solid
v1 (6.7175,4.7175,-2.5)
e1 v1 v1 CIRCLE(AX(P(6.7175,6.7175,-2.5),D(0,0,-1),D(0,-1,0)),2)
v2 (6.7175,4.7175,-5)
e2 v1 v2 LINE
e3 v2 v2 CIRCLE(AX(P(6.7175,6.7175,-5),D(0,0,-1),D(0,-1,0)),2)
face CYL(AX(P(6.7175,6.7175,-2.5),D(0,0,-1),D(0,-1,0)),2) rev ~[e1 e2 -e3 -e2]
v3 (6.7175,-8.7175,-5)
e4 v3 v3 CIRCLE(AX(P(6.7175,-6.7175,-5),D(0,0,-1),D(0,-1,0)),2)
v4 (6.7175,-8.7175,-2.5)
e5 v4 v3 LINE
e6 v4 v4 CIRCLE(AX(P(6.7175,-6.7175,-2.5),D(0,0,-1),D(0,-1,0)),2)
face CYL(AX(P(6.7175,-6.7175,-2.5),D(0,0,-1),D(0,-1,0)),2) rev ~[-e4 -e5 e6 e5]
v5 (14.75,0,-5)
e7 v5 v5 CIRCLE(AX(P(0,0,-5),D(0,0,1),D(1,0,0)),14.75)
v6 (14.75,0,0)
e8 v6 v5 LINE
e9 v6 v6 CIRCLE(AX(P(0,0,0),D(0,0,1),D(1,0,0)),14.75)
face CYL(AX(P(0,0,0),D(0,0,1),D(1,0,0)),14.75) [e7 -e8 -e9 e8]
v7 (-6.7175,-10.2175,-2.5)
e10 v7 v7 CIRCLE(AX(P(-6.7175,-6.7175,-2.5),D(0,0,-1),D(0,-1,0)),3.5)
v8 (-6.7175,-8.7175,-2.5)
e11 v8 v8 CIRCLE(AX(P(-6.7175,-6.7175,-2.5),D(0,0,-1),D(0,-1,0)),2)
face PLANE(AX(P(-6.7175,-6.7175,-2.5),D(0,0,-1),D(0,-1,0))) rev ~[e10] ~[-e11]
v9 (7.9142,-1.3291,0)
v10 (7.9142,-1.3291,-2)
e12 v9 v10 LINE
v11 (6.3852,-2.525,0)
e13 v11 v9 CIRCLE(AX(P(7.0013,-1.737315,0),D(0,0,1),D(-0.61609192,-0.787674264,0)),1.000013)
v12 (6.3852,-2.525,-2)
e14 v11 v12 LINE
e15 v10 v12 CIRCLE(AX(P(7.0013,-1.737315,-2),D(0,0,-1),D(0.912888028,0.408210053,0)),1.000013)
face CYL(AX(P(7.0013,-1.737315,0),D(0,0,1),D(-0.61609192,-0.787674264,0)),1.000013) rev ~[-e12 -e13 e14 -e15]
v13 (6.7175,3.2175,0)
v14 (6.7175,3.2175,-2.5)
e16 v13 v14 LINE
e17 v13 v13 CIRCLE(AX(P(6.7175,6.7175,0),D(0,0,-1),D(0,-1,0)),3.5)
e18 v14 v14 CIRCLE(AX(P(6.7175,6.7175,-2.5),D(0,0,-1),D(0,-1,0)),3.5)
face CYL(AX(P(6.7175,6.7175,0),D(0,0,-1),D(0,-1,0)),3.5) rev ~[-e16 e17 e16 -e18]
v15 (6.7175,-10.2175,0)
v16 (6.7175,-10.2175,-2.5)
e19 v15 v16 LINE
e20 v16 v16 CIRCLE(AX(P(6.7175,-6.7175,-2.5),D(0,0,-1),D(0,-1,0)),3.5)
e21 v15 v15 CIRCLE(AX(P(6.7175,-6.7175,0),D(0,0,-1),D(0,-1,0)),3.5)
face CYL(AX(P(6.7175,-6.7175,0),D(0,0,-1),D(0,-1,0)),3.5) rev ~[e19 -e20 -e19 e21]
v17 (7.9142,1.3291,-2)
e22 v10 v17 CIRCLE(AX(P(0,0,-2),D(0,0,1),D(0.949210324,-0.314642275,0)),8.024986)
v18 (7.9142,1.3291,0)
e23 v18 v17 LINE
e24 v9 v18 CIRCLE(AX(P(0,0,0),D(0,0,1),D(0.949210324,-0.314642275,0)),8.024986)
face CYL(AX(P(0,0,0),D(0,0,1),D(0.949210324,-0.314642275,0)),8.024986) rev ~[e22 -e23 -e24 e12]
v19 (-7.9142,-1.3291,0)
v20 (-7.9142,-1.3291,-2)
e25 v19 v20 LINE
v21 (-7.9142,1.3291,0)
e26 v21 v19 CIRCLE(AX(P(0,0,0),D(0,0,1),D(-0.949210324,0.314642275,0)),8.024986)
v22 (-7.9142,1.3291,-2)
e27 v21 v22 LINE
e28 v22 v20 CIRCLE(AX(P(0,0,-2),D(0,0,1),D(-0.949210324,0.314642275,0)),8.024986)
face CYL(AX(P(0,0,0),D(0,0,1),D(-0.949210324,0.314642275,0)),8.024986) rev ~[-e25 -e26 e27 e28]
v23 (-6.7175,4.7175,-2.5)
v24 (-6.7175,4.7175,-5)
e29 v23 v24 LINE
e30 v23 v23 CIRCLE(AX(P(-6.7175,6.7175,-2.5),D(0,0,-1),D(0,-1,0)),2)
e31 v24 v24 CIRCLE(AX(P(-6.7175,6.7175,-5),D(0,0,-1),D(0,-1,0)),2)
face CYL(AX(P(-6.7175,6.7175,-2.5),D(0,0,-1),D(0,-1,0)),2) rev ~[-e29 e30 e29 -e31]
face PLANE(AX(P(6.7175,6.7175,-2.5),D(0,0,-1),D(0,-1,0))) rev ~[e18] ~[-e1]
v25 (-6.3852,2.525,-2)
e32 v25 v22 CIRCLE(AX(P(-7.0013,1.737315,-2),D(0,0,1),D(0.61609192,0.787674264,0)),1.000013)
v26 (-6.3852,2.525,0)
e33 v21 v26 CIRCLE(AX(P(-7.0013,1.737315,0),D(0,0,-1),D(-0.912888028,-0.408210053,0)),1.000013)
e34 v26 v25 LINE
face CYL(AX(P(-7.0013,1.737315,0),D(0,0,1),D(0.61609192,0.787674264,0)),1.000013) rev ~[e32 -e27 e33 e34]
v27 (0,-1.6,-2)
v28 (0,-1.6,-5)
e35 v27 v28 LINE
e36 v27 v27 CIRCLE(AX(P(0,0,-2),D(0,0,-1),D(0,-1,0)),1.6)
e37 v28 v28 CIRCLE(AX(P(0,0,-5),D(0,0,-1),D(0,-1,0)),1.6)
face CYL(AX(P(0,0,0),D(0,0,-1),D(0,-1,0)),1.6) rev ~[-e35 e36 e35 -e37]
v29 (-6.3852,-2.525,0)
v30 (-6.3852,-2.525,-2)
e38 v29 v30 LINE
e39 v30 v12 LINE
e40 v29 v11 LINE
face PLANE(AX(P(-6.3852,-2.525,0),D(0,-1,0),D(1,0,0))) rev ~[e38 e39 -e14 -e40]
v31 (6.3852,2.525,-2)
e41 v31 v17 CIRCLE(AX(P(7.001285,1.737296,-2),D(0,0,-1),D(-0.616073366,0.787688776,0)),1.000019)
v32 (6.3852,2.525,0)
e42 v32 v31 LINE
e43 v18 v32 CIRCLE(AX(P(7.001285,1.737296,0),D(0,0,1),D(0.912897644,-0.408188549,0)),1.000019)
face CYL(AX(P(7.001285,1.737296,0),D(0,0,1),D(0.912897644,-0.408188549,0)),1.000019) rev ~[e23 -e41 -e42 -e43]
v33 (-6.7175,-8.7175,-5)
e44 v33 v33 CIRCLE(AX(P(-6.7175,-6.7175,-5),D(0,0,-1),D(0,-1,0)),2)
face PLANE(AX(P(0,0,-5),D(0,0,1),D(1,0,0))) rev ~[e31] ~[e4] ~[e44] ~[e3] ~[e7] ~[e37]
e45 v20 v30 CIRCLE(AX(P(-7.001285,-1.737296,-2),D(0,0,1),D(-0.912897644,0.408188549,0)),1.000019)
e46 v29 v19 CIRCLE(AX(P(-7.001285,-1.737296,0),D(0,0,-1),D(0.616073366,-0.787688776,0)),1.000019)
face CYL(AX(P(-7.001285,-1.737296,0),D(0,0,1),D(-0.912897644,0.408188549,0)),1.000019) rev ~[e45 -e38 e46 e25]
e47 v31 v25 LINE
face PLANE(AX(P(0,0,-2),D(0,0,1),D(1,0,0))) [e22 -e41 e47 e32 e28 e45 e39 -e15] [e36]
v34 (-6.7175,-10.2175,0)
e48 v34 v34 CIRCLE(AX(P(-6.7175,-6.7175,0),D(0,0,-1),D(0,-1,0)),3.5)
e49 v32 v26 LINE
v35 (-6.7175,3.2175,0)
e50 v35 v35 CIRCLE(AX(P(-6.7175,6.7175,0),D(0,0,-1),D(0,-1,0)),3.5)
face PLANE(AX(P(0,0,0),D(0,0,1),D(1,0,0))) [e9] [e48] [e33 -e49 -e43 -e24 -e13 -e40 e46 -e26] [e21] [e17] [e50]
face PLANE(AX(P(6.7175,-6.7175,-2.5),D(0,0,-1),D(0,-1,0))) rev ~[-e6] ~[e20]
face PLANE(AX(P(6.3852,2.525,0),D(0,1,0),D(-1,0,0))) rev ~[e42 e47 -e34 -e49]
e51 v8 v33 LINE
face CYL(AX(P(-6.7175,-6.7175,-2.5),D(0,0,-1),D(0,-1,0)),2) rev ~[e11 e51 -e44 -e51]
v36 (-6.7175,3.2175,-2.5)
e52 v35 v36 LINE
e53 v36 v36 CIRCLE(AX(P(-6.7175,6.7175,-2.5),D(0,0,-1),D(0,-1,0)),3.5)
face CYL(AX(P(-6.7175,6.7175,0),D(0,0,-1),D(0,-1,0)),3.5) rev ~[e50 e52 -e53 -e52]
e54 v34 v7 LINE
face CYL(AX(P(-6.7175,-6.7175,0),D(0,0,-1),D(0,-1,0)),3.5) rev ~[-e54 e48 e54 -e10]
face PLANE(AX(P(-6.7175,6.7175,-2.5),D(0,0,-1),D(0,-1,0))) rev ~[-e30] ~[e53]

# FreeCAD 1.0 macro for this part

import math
import FreeCAD as App
import Part
import Sketcher
Q = App.Units.Quantity

doc = App.newDocument("Part")
body = doc.addObject("PartDesign::Body", "Body")

# Sketch on XY plane
sketch1 = body.newObject("Sketcher::SketchObject", "Sketch")
sketch1.AttachmentSupport = (doc.getObject("XY_Plane"), [""])
sketch1.MapMode = "FlatFace"
sketch1.addGeometry(Part.Circle(App.Vector(0, 0, 0), App.Vector(0, 0, 1), 15), False)
sketch1.addConstraint(Sketcher.Constraint("Coincident", 0, 3, -1, 1))
sketch1.addConstraint(Sketcher.Constraint("Diameter", 0, Q("29.5 mm")))
pad1 = body.newObject("PartDesign::Pad", "Pad")
pad1.Profile = sketch1
pad1.Length = 5
pad1.Reversed = True

# Sketch on XY plane
sketch2 = body.newObject("Sketcher::SketchObject", "Sketch001")
sketch2.AttachmentSupport = (doc.getObject("XY_Plane"), [""])
sketch2.MapMode = "FlatFace"
sketch2.addGeometry(Part.Circle(App.Vector(0, 0, 0), App.Vector(0, 0, 1), 1.6), False)
sketch2.addConstraint(Sketcher.Constraint("Coincident", 0, 3, -1, 1))
sketch2.addConstraint(Sketcher.Constraint("Diameter", 0, Q("3.2 mm")))
doc.recompute()
hole = body.newObject("PartDesign::Hole", "Hole")
hole.Profile = sketch2
hole.ThreadType = "None"
hole.Diameter = 3.2
hole.DepthType = "ThroughAll"

# Sketch on XY plane
sketch3 = body.newObject("Sketcher::SketchObject", "Sketch002")
sketch3.AttachmentSupport = (doc.getObject("XY_Plane"), [""])
sketch3.MapMode = "FlatFace"
sketch3.addGeometry(Part.Circle(App.Vector(6.7, 6.7, 0), App.Vector(0, 0, 1), 2), False)
sketch3.addGeometry(Part.Circle(App.Vector(-6.7, 6.7, 0), App.Vector(0, 0, 1), 2), False)
sketch3.addGeometry(Part.Circle(App.Vector(-6.7, -6.7, 0), App.Vector(0, 0, 1), 2), False)
sketch3.addGeometry(Part.Circle(App.Vector(6.7, -6.7, 0), App.Vector(0, 0, 1), 2), False)
sketch3.addConstraint(Sketcher.Constraint("Equal", 0, 1))
sketch3.addConstraint(Sketcher.Constraint("Equal", 1, 2))
sketch3.addConstraint(Sketcher.Constraint("Equal", 2, 3))
sketch3.addConstraint(Sketcher.Constraint("Symmetric", 0, 3, 2, 3, -1, 1))
sketch3.addConstraint(Sketcher.Constraint("Symmetric", 1, 3, 3, 3, -1, 1))
sketch3.addConstraint(Sketcher.Constraint("Symmetric", 0, 3, 1, 3, -2))
sketch3.addConstraint(Sketcher.Constraint("Diameter", 0, Q("4 mm")))
sketch3.addConstraint(Sketcher.Constraint("DistanceX", 1, 3, 0, 3, Q("13.435 mm")))
sketch3.addConstraint(Sketcher.Constraint("DistanceY", 2, 3, 1, 3, Q("13.435 mm")))
doc.recompute()
hole2 = body.newObject("PartDesign::Hole", "Hole001")
hole2.Profile = sketch3
hole2.ThreadType = "None"
hole2.Diameter = 4
hole2.DepthType = "ThroughAll"
hole2.HoleCutType = "Counterbore"
hole2.HoleCutDiameter = 7
hole2.HoleCutDepth = 2.5

# Sketch on XY plane
sketch4 = body.newObject("Sketcher::SketchObject", "Sketch003")
sketch4.AttachmentSupport = (doc.getObject("XY_Plane"), [""])
sketch4.MapMode = "FlatFace"
sketch4.addGeometry(Part.ArcOfCircle(Part.Circle(App.Vector(0, 0, 0), App.Vector(0, 0, 1), 8), math.radians(170.47), math.radians(189.53)), False)
sketch4.addGeometry(Part.ArcOfCircle(Part.Circle(App.Vector(-7, -1.7, 0), App.Vector(0, 0, 1), 1), math.radians(156), math.radians(308)), False)
sketch4.addGeometry(Part.LineSegment(App.Vector(-6.4, -2.5, 0), App.Vector(6.4, -2.5, 0)), False)
sketch4.addGeometry(Part.ArcOfCircle(Part.Circle(App.Vector(7, -1.7, 0), App.Vector(0, 0, 1), 1), math.radians(-128), math.radians(24)), False)
sketch4.addGeometry(Part.ArcOfCircle(Part.Circle(App.Vector(0, 0, 0), App.Vector(0, 0, 1), 8), math.radians(-9.53), math.radians(9.53)), False)
sketch4.addGeometry(Part.ArcOfCircle(Part.Circle(App.Vector(7, 1.7, 0), App.Vector(0, 0, 1), 1), math.radians(-24), math.radians(128)), False)
sketch4.addGeometry(Part.LineSegment(App.Vector(6.4, 2.5, 0), App.Vector(-6.4, 2.5, 0)), False)
sketch4.addGeometry(Part.ArcOfCircle(Part.Circle(App.Vector(-7, 1.7, 0), App.Vector(0, 0, 1), 1), math.radians(52), math.radians(204)), False)
sketch4.addConstraint(Sketcher.Constraint("Coincident", 0, 2, 1, 1))
sketch4.addConstraint(Sketcher.Constraint("Coincident", 1, 2, 2, 1))
sketch4.addConstraint(Sketcher.Constraint("Coincident", 2, 2, 3, 1))
sketch4.addConstraint(Sketcher.Constraint("Coincident", 3, 2, 4, 1))
sketch4.addConstraint(Sketcher.Constraint("Coincident", 4, 2, 5, 1))
sketch4.addConstraint(Sketcher.Constraint("Coincident", 5, 2, 6, 1))
sketch4.addConstraint(Sketcher.Constraint("Coincident", 6, 2, 7, 1))
sketch4.addConstraint(Sketcher.Constraint("Coincident", 7, 2, 0, 1))
sketch4.addConstraint(Sketcher.Constraint("Horizontal", 2))
sketch4.addConstraint(Sketcher.Constraint("Horizontal", 6))
sketch4.addConstraint(Sketcher.Constraint("Coincident", 0, 3, -1, 1))
sketch4.addConstraint(Sketcher.Constraint("Coincident", 4, 3, -1, 1))
sketch4.addConstraint(Sketcher.Constraint("Equal", 1, 3))
sketch4.addConstraint(Sketcher.Constraint("Equal", 0, 4))
sketch4.addConstraint(Sketcher.Constraint("Equal", 3, 5))
sketch4.addConstraint(Sketcher.Constraint("Equal", 5, 7))
sketch4.addConstraint(Sketcher.Constraint("Symmetric", 1, 3, 5, 3, -1, 1))
sketch4.addConstraint(Sketcher.Constraint("Symmetric", 3, 3, 7, 3, -1, 1))
sketch4.addConstraint(Sketcher.Constraint("Symmetric", 1, 3, 3, 3, -2))
sketch4.addConstraint(Sketcher.Constraint("Vertical", 2, 2, 5, 2))
sketch4.addConstraint(Sketcher.Constraint("Radius", 1, Q("1 mm")))
sketch4.addConstraint(Sketcher.Constraint("Radius", 0, Q("8.025 mm")))
sketch4.addConstraint(Sketcher.Constraint("DistanceY", 2, 2, 5, 2, Q("5.05 mm")))
sketch4.addConstraint(Sketcher.Constraint("DistanceX", 2, 1, 2, 2, Q("12.7704 mm")))
sketch4.addConstraint(Sketcher.Constraint("DistanceY", 0, 2, -1, 1, Q("1.329 mm")))
pocket1 = body.newObject("PartDesign::Pocket", "Pocket")
pocket1.Profile = sketch4
pocket1.Length = 2

doc.recompute()
